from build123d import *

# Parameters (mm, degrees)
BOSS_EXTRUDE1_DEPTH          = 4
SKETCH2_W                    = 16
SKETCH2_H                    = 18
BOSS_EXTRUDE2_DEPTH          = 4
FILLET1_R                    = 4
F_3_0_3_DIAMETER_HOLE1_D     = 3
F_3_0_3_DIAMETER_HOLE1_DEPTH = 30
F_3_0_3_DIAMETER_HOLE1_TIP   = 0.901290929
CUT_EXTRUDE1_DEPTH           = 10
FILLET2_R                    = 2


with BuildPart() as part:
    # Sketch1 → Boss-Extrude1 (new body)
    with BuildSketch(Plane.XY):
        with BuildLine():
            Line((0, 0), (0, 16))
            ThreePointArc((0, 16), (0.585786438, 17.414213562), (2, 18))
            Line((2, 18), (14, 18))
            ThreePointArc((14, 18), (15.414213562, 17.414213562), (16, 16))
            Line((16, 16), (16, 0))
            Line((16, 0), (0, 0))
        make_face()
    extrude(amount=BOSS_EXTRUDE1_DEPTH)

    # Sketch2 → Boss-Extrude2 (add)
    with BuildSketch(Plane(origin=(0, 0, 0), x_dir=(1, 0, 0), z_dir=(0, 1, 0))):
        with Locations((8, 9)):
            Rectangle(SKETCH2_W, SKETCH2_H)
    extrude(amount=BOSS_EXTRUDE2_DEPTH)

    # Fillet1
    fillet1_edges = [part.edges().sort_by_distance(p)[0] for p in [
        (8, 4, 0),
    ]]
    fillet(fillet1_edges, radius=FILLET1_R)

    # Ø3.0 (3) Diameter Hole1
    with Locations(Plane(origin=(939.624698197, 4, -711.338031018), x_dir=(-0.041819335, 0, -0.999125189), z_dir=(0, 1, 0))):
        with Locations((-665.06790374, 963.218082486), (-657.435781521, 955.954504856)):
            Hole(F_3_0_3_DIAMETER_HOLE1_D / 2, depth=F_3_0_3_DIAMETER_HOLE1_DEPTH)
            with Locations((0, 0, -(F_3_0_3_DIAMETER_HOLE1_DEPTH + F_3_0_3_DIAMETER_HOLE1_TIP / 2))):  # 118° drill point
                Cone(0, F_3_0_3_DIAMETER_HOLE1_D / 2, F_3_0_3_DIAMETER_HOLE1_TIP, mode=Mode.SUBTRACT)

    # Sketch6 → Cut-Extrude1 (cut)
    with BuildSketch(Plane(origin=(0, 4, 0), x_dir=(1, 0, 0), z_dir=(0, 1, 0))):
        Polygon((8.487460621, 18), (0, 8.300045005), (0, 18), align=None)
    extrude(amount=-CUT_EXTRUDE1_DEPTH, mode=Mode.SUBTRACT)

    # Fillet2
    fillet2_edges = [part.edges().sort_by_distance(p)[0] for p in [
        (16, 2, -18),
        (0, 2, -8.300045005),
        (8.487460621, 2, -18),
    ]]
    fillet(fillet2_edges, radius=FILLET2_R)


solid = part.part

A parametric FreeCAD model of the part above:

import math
import FreeCAD as App
import Part
import Sketcher


def edges_at(feature, points):
    """Names of the edges that pass closest to the given points."""
    edges = feature.Shape.Edges
    near = lambda p: min(range(len(edges)), key=lambda i: edges[i].distToShape(Part.Vertex(*p))[0])
    return sorted({f"Edge{near(p) + 1}" for p in points})

doc = App.newDocument("Part")
body = doc.addObject("PartDesign::Body", "Body")

sketch1 = doc.addObject("Sketcher::SketchObject", "Sketch")
body.addObject(sketch1)
sketch1.AttachmentSupport = (doc.XY_Plane, [""])
sketch1.MapMode = "FlatFace"
sketch1.addGeometry(Part.LineSegment(App.Vector(0, 16, 0), App.Vector(0, 0, 0)), False)
sketch1.addGeometry(Part.LineSegment(App.Vector(0, 0, 0), App.Vector(16, 0, 0)), False)
sketch1.addGeometry(Part.LineSegment(App.Vector(16, 0, 0), App.Vector(16, 16, 0)), False)
sketch1.addGeometry(Part.ArcOfCircle(Part.Circle(App.Vector(14, 16, 0), App.Vector(0, 0, 1), 2), math.radians(0), math.radians(90)), False)
sketch1.addGeometry(Part.LineSegment(App.Vector(14, 18, 0), App.Vector(2, 18, 0)), False)
sketch1.addGeometry(Part.ArcOfCircle(Part.Circle(App.Vector(2, 16, 0), App.Vector(0, 0, 1), 2), math.radians(90), math.radians(180)), False)
sketch1.addConstraint(Sketcher.Constraint("Coincident", 0, 2, 1, 1))
sketch1.addConstraint(Sketcher.Constraint("Coincident", 1, 2, 2, 1))
sketch1.addConstraint(Sketcher.Constraint("Tangent", 2, 2, 3, 1))
sketch1.addConstraint(Sketcher.Constraint("Tangent", 3, 2, 4, 1))
sketch1.addConstraint(Sketcher.Constraint("Tangent", 4, 2, 5, 1))
sketch1.addConstraint(Sketcher.Constraint("Tangent", 5, 2, 0, 1))
sketch1.addConstraint(Sketcher.Constraint("Vertical", 0))
sketch1.addConstraint(Sketcher.Constraint("Horizontal", 1))
sketch1.addConstraint(Sketcher.Constraint("Vertical", 2))
sketch1.addConstraint(Sketcher.Constraint("Horizontal", 4))
sketch1.addConstraint(Sketcher.Constraint("Coincident", 0, 2, -1, 1))
sketch1.addConstraint(Sketcher.Constraint("Equal", 3, 5))
sketch1.addConstraint(Sketcher.Constraint("Equal", 1, 0))
sketch1.addConstraint(Sketcher.Constraint("Radius", 3, 2.0))
sketch1.addConstraint(Sketcher.Constraint("DistanceX", 1, 1, 1, 2, 16.0))
pad1 = doc.addObject("PartDesign::Pad", "Pad")
body.addObject(pad1)
pad1.Profile = sketch1
pad1.Length = 4

sketch2 = doc.addObject("Sketcher::SketchObject", "Sketch001")
body.addObject(sketch2)
sketch2.AttachmentSupport = (doc.XZ_Plane, [""])
sketch2.MapMode = "FlatFace"
sketch2.addGeometry(Part.LineSegment(App.Vector(0, -18, 0), App.Vector(0, 0, 0)), False)
sketch2.addGeometry(Part.LineSegment(App.Vector(0, 0, 0), App.Vector(16, 0, 0)), False)
sketch2.addGeometry(Part.LineSegment(App.Vector(16, 0, 0), App.Vector(16, -18, 0)), False)
sketch2.addGeometry(Part.LineSegment(App.Vector(16, -18, 0), App.Vector(0, -18, 0)), False)
sketch2.addConstraint(Sketcher.Constraint("Coincident", 0, 2, 1, 1))
sketch2.addConstraint(Sketcher.Constraint("Coincident", 1, 2, 2, 1))
sketch2.addConstraint(Sketcher.Constraint("Coincident", 2, 2, 3, 1))
sketch2.addConstraint(Sketcher.Constraint("Coincident", 3, 2, 0, 1))
sketch2.addConstraint(Sketcher.Constraint("Vertical", 0))
sketch2.addConstraint(Sketcher.Constraint("Horizontal", 1))
sketch2.addConstraint(Sketcher.Constraint("Vertical", 2))
sketch2.addConstraint(Sketcher.Constraint("Horizontal", 3))
sketch2.addConstraint(Sketcher.Constraint("Coincident", 0, 2, -1, 1))
sketch2.addConstraint(Sketcher.Constraint("DistanceX", 1, 1, 1, 2, 16.0))
sketch2.addConstraint(Sketcher.Constraint("DistanceY", 0, 1, 0, 2, 18.0))
pad2 = doc.addObject("PartDesign::Pad", "Pad001")
body.addObject(pad2)
pad2.Profile = sketch2
pad2.Length = 4
pad2.Reversed = True
doc.recompute()

fillet = doc.addObject("PartDesign::Fillet", "Fillet")
body.addObject(fillet)
fillet.Base = (pad2, edges_at(pad2, [(8, 4, 0)]))
fillet.Radius = 4

sketch3 = doc.addObject("Sketcher::SketchObject", "Sketch002")
body.addObject(sketch3)
sketch3.AttachmentSupport = (doc.XZ_Plane, [""])
sketch3.MapMode = "FlatFace"
sketch3.AttachmentOffset = App.Placement(App.Vector(0, 0, -4), App.Rotation())
sketch3.addGeometry(Part.Circle(App.Vector(5.061947, -6.570796, 0), App.Vector(0, 0, 1), 1.5), False)
sketch3.addGeometry(Part.Circle(App.Vector(12, -14.5, 0), App.Vector(0, 0, 1), 1.5), False)
sketch3.addConstraint(Sketcher.Constraint("Equal", 0, 1))
sketch3.addConstraint(Sketcher.Constraint("Diameter", 0, 3.0))
sketch3.addConstraint(Sketcher.Constraint("DistanceX", -1, 1, 1, 3, 12.0))
sketch3.addConstraint(Sketcher.Constraint("DistanceY", 1, 3, -1, 1, 14.5))
sketch3.addConstraint(Sketcher.Constraint("DistanceX", -1, 1, 0, 3, 5.061947))
sketch3.addConstraint(Sketcher.Constraint("DistanceY", 0, 3, -1, 1, 6.570796))
doc.recompute()
hole = doc.addObject("PartDesign::Hole", "Hole")
body.addObject(hole)
hole.Profile = sketch3
hole.ThreadType = "None"
hole.Diameter = 3
hole.DepthType = "Dimension"
hole.Depth = 30
hole.DrillPoint = "Angled"
hole.DrillPointAngle = 118
hole.Reversed = True

sketch4 = doc.addObject("Sketcher::SketchObject", "Sketch003")
body.addObject(sketch4)
sketch4.AttachmentSupport = (doc.XZ_Plane, [""])
sketch4.MapMode = "FlatFace"
sketch4.AttachmentOffset = App.Placement(App.Vector(0, 0, -4), App.Rotation())
sketch4.addGeometry(Part.LineSegment(App.Vector(0, -8.300045, 0), App.Vector(8.487461, -18, 0)), False)
sketch4.addGeometry(Part.LineSegment(App.Vector(8.487461, -18, 0), App.Vector(0, -18, 0)), False)
sketch4.addGeometry(Part.LineSegment(App.Vector(0, -18, 0), App.Vector(0, -8.300045, 0)), False)
sketch4.addConstraint(Sketcher.Constraint("Coincident", 0, 2, 1, 1))
sketch4.addConstraint(Sketcher.Constraint("Coincident", 1, 2, 2, 1))
sketch4.addConstraint(Sketcher.Constraint("Coincident", 2, 2, 0, 1))
sketch4.addConstraint(Sketcher.Constraint("Horizontal", 1))
sketch4.addConstraint(Sketcher.Constraint("Vertical", 2))
sketch4.addConstraint(Sketcher.Constraint("PointOnObject", 1, 2, -2))
sketch4.addConstraint(Sketcher.Constraint("DistanceY", 0, 2, -1, 1, 18.0))
sketch4.addConstraint(Sketcher.Constraint("DistanceX", 1, 2, 1, 1, 8.487461))
sketch4.addConstraint(Sketcher.Constraint("Distance", 0, 12.888992))
pocket1 = doc.addObject("PartDesign::Pocket", "Pocket")
body.addObject(pocket1)
pocket1.Profile = sketch4
pocket1.Length = 10
pocket1.Reversed = True
doc.recompute()

fillet2 = doc.addObject("PartDesign::Fillet", "Fillet001")
body.addObject(fillet2)
fillet2.Base = (pocket1, edges_at(pocket1, [(16, 2, -18), (0, 2, -8.3), (8.487, 2, -18)]))
fillet2.Radius = 2

doc.recompute()
